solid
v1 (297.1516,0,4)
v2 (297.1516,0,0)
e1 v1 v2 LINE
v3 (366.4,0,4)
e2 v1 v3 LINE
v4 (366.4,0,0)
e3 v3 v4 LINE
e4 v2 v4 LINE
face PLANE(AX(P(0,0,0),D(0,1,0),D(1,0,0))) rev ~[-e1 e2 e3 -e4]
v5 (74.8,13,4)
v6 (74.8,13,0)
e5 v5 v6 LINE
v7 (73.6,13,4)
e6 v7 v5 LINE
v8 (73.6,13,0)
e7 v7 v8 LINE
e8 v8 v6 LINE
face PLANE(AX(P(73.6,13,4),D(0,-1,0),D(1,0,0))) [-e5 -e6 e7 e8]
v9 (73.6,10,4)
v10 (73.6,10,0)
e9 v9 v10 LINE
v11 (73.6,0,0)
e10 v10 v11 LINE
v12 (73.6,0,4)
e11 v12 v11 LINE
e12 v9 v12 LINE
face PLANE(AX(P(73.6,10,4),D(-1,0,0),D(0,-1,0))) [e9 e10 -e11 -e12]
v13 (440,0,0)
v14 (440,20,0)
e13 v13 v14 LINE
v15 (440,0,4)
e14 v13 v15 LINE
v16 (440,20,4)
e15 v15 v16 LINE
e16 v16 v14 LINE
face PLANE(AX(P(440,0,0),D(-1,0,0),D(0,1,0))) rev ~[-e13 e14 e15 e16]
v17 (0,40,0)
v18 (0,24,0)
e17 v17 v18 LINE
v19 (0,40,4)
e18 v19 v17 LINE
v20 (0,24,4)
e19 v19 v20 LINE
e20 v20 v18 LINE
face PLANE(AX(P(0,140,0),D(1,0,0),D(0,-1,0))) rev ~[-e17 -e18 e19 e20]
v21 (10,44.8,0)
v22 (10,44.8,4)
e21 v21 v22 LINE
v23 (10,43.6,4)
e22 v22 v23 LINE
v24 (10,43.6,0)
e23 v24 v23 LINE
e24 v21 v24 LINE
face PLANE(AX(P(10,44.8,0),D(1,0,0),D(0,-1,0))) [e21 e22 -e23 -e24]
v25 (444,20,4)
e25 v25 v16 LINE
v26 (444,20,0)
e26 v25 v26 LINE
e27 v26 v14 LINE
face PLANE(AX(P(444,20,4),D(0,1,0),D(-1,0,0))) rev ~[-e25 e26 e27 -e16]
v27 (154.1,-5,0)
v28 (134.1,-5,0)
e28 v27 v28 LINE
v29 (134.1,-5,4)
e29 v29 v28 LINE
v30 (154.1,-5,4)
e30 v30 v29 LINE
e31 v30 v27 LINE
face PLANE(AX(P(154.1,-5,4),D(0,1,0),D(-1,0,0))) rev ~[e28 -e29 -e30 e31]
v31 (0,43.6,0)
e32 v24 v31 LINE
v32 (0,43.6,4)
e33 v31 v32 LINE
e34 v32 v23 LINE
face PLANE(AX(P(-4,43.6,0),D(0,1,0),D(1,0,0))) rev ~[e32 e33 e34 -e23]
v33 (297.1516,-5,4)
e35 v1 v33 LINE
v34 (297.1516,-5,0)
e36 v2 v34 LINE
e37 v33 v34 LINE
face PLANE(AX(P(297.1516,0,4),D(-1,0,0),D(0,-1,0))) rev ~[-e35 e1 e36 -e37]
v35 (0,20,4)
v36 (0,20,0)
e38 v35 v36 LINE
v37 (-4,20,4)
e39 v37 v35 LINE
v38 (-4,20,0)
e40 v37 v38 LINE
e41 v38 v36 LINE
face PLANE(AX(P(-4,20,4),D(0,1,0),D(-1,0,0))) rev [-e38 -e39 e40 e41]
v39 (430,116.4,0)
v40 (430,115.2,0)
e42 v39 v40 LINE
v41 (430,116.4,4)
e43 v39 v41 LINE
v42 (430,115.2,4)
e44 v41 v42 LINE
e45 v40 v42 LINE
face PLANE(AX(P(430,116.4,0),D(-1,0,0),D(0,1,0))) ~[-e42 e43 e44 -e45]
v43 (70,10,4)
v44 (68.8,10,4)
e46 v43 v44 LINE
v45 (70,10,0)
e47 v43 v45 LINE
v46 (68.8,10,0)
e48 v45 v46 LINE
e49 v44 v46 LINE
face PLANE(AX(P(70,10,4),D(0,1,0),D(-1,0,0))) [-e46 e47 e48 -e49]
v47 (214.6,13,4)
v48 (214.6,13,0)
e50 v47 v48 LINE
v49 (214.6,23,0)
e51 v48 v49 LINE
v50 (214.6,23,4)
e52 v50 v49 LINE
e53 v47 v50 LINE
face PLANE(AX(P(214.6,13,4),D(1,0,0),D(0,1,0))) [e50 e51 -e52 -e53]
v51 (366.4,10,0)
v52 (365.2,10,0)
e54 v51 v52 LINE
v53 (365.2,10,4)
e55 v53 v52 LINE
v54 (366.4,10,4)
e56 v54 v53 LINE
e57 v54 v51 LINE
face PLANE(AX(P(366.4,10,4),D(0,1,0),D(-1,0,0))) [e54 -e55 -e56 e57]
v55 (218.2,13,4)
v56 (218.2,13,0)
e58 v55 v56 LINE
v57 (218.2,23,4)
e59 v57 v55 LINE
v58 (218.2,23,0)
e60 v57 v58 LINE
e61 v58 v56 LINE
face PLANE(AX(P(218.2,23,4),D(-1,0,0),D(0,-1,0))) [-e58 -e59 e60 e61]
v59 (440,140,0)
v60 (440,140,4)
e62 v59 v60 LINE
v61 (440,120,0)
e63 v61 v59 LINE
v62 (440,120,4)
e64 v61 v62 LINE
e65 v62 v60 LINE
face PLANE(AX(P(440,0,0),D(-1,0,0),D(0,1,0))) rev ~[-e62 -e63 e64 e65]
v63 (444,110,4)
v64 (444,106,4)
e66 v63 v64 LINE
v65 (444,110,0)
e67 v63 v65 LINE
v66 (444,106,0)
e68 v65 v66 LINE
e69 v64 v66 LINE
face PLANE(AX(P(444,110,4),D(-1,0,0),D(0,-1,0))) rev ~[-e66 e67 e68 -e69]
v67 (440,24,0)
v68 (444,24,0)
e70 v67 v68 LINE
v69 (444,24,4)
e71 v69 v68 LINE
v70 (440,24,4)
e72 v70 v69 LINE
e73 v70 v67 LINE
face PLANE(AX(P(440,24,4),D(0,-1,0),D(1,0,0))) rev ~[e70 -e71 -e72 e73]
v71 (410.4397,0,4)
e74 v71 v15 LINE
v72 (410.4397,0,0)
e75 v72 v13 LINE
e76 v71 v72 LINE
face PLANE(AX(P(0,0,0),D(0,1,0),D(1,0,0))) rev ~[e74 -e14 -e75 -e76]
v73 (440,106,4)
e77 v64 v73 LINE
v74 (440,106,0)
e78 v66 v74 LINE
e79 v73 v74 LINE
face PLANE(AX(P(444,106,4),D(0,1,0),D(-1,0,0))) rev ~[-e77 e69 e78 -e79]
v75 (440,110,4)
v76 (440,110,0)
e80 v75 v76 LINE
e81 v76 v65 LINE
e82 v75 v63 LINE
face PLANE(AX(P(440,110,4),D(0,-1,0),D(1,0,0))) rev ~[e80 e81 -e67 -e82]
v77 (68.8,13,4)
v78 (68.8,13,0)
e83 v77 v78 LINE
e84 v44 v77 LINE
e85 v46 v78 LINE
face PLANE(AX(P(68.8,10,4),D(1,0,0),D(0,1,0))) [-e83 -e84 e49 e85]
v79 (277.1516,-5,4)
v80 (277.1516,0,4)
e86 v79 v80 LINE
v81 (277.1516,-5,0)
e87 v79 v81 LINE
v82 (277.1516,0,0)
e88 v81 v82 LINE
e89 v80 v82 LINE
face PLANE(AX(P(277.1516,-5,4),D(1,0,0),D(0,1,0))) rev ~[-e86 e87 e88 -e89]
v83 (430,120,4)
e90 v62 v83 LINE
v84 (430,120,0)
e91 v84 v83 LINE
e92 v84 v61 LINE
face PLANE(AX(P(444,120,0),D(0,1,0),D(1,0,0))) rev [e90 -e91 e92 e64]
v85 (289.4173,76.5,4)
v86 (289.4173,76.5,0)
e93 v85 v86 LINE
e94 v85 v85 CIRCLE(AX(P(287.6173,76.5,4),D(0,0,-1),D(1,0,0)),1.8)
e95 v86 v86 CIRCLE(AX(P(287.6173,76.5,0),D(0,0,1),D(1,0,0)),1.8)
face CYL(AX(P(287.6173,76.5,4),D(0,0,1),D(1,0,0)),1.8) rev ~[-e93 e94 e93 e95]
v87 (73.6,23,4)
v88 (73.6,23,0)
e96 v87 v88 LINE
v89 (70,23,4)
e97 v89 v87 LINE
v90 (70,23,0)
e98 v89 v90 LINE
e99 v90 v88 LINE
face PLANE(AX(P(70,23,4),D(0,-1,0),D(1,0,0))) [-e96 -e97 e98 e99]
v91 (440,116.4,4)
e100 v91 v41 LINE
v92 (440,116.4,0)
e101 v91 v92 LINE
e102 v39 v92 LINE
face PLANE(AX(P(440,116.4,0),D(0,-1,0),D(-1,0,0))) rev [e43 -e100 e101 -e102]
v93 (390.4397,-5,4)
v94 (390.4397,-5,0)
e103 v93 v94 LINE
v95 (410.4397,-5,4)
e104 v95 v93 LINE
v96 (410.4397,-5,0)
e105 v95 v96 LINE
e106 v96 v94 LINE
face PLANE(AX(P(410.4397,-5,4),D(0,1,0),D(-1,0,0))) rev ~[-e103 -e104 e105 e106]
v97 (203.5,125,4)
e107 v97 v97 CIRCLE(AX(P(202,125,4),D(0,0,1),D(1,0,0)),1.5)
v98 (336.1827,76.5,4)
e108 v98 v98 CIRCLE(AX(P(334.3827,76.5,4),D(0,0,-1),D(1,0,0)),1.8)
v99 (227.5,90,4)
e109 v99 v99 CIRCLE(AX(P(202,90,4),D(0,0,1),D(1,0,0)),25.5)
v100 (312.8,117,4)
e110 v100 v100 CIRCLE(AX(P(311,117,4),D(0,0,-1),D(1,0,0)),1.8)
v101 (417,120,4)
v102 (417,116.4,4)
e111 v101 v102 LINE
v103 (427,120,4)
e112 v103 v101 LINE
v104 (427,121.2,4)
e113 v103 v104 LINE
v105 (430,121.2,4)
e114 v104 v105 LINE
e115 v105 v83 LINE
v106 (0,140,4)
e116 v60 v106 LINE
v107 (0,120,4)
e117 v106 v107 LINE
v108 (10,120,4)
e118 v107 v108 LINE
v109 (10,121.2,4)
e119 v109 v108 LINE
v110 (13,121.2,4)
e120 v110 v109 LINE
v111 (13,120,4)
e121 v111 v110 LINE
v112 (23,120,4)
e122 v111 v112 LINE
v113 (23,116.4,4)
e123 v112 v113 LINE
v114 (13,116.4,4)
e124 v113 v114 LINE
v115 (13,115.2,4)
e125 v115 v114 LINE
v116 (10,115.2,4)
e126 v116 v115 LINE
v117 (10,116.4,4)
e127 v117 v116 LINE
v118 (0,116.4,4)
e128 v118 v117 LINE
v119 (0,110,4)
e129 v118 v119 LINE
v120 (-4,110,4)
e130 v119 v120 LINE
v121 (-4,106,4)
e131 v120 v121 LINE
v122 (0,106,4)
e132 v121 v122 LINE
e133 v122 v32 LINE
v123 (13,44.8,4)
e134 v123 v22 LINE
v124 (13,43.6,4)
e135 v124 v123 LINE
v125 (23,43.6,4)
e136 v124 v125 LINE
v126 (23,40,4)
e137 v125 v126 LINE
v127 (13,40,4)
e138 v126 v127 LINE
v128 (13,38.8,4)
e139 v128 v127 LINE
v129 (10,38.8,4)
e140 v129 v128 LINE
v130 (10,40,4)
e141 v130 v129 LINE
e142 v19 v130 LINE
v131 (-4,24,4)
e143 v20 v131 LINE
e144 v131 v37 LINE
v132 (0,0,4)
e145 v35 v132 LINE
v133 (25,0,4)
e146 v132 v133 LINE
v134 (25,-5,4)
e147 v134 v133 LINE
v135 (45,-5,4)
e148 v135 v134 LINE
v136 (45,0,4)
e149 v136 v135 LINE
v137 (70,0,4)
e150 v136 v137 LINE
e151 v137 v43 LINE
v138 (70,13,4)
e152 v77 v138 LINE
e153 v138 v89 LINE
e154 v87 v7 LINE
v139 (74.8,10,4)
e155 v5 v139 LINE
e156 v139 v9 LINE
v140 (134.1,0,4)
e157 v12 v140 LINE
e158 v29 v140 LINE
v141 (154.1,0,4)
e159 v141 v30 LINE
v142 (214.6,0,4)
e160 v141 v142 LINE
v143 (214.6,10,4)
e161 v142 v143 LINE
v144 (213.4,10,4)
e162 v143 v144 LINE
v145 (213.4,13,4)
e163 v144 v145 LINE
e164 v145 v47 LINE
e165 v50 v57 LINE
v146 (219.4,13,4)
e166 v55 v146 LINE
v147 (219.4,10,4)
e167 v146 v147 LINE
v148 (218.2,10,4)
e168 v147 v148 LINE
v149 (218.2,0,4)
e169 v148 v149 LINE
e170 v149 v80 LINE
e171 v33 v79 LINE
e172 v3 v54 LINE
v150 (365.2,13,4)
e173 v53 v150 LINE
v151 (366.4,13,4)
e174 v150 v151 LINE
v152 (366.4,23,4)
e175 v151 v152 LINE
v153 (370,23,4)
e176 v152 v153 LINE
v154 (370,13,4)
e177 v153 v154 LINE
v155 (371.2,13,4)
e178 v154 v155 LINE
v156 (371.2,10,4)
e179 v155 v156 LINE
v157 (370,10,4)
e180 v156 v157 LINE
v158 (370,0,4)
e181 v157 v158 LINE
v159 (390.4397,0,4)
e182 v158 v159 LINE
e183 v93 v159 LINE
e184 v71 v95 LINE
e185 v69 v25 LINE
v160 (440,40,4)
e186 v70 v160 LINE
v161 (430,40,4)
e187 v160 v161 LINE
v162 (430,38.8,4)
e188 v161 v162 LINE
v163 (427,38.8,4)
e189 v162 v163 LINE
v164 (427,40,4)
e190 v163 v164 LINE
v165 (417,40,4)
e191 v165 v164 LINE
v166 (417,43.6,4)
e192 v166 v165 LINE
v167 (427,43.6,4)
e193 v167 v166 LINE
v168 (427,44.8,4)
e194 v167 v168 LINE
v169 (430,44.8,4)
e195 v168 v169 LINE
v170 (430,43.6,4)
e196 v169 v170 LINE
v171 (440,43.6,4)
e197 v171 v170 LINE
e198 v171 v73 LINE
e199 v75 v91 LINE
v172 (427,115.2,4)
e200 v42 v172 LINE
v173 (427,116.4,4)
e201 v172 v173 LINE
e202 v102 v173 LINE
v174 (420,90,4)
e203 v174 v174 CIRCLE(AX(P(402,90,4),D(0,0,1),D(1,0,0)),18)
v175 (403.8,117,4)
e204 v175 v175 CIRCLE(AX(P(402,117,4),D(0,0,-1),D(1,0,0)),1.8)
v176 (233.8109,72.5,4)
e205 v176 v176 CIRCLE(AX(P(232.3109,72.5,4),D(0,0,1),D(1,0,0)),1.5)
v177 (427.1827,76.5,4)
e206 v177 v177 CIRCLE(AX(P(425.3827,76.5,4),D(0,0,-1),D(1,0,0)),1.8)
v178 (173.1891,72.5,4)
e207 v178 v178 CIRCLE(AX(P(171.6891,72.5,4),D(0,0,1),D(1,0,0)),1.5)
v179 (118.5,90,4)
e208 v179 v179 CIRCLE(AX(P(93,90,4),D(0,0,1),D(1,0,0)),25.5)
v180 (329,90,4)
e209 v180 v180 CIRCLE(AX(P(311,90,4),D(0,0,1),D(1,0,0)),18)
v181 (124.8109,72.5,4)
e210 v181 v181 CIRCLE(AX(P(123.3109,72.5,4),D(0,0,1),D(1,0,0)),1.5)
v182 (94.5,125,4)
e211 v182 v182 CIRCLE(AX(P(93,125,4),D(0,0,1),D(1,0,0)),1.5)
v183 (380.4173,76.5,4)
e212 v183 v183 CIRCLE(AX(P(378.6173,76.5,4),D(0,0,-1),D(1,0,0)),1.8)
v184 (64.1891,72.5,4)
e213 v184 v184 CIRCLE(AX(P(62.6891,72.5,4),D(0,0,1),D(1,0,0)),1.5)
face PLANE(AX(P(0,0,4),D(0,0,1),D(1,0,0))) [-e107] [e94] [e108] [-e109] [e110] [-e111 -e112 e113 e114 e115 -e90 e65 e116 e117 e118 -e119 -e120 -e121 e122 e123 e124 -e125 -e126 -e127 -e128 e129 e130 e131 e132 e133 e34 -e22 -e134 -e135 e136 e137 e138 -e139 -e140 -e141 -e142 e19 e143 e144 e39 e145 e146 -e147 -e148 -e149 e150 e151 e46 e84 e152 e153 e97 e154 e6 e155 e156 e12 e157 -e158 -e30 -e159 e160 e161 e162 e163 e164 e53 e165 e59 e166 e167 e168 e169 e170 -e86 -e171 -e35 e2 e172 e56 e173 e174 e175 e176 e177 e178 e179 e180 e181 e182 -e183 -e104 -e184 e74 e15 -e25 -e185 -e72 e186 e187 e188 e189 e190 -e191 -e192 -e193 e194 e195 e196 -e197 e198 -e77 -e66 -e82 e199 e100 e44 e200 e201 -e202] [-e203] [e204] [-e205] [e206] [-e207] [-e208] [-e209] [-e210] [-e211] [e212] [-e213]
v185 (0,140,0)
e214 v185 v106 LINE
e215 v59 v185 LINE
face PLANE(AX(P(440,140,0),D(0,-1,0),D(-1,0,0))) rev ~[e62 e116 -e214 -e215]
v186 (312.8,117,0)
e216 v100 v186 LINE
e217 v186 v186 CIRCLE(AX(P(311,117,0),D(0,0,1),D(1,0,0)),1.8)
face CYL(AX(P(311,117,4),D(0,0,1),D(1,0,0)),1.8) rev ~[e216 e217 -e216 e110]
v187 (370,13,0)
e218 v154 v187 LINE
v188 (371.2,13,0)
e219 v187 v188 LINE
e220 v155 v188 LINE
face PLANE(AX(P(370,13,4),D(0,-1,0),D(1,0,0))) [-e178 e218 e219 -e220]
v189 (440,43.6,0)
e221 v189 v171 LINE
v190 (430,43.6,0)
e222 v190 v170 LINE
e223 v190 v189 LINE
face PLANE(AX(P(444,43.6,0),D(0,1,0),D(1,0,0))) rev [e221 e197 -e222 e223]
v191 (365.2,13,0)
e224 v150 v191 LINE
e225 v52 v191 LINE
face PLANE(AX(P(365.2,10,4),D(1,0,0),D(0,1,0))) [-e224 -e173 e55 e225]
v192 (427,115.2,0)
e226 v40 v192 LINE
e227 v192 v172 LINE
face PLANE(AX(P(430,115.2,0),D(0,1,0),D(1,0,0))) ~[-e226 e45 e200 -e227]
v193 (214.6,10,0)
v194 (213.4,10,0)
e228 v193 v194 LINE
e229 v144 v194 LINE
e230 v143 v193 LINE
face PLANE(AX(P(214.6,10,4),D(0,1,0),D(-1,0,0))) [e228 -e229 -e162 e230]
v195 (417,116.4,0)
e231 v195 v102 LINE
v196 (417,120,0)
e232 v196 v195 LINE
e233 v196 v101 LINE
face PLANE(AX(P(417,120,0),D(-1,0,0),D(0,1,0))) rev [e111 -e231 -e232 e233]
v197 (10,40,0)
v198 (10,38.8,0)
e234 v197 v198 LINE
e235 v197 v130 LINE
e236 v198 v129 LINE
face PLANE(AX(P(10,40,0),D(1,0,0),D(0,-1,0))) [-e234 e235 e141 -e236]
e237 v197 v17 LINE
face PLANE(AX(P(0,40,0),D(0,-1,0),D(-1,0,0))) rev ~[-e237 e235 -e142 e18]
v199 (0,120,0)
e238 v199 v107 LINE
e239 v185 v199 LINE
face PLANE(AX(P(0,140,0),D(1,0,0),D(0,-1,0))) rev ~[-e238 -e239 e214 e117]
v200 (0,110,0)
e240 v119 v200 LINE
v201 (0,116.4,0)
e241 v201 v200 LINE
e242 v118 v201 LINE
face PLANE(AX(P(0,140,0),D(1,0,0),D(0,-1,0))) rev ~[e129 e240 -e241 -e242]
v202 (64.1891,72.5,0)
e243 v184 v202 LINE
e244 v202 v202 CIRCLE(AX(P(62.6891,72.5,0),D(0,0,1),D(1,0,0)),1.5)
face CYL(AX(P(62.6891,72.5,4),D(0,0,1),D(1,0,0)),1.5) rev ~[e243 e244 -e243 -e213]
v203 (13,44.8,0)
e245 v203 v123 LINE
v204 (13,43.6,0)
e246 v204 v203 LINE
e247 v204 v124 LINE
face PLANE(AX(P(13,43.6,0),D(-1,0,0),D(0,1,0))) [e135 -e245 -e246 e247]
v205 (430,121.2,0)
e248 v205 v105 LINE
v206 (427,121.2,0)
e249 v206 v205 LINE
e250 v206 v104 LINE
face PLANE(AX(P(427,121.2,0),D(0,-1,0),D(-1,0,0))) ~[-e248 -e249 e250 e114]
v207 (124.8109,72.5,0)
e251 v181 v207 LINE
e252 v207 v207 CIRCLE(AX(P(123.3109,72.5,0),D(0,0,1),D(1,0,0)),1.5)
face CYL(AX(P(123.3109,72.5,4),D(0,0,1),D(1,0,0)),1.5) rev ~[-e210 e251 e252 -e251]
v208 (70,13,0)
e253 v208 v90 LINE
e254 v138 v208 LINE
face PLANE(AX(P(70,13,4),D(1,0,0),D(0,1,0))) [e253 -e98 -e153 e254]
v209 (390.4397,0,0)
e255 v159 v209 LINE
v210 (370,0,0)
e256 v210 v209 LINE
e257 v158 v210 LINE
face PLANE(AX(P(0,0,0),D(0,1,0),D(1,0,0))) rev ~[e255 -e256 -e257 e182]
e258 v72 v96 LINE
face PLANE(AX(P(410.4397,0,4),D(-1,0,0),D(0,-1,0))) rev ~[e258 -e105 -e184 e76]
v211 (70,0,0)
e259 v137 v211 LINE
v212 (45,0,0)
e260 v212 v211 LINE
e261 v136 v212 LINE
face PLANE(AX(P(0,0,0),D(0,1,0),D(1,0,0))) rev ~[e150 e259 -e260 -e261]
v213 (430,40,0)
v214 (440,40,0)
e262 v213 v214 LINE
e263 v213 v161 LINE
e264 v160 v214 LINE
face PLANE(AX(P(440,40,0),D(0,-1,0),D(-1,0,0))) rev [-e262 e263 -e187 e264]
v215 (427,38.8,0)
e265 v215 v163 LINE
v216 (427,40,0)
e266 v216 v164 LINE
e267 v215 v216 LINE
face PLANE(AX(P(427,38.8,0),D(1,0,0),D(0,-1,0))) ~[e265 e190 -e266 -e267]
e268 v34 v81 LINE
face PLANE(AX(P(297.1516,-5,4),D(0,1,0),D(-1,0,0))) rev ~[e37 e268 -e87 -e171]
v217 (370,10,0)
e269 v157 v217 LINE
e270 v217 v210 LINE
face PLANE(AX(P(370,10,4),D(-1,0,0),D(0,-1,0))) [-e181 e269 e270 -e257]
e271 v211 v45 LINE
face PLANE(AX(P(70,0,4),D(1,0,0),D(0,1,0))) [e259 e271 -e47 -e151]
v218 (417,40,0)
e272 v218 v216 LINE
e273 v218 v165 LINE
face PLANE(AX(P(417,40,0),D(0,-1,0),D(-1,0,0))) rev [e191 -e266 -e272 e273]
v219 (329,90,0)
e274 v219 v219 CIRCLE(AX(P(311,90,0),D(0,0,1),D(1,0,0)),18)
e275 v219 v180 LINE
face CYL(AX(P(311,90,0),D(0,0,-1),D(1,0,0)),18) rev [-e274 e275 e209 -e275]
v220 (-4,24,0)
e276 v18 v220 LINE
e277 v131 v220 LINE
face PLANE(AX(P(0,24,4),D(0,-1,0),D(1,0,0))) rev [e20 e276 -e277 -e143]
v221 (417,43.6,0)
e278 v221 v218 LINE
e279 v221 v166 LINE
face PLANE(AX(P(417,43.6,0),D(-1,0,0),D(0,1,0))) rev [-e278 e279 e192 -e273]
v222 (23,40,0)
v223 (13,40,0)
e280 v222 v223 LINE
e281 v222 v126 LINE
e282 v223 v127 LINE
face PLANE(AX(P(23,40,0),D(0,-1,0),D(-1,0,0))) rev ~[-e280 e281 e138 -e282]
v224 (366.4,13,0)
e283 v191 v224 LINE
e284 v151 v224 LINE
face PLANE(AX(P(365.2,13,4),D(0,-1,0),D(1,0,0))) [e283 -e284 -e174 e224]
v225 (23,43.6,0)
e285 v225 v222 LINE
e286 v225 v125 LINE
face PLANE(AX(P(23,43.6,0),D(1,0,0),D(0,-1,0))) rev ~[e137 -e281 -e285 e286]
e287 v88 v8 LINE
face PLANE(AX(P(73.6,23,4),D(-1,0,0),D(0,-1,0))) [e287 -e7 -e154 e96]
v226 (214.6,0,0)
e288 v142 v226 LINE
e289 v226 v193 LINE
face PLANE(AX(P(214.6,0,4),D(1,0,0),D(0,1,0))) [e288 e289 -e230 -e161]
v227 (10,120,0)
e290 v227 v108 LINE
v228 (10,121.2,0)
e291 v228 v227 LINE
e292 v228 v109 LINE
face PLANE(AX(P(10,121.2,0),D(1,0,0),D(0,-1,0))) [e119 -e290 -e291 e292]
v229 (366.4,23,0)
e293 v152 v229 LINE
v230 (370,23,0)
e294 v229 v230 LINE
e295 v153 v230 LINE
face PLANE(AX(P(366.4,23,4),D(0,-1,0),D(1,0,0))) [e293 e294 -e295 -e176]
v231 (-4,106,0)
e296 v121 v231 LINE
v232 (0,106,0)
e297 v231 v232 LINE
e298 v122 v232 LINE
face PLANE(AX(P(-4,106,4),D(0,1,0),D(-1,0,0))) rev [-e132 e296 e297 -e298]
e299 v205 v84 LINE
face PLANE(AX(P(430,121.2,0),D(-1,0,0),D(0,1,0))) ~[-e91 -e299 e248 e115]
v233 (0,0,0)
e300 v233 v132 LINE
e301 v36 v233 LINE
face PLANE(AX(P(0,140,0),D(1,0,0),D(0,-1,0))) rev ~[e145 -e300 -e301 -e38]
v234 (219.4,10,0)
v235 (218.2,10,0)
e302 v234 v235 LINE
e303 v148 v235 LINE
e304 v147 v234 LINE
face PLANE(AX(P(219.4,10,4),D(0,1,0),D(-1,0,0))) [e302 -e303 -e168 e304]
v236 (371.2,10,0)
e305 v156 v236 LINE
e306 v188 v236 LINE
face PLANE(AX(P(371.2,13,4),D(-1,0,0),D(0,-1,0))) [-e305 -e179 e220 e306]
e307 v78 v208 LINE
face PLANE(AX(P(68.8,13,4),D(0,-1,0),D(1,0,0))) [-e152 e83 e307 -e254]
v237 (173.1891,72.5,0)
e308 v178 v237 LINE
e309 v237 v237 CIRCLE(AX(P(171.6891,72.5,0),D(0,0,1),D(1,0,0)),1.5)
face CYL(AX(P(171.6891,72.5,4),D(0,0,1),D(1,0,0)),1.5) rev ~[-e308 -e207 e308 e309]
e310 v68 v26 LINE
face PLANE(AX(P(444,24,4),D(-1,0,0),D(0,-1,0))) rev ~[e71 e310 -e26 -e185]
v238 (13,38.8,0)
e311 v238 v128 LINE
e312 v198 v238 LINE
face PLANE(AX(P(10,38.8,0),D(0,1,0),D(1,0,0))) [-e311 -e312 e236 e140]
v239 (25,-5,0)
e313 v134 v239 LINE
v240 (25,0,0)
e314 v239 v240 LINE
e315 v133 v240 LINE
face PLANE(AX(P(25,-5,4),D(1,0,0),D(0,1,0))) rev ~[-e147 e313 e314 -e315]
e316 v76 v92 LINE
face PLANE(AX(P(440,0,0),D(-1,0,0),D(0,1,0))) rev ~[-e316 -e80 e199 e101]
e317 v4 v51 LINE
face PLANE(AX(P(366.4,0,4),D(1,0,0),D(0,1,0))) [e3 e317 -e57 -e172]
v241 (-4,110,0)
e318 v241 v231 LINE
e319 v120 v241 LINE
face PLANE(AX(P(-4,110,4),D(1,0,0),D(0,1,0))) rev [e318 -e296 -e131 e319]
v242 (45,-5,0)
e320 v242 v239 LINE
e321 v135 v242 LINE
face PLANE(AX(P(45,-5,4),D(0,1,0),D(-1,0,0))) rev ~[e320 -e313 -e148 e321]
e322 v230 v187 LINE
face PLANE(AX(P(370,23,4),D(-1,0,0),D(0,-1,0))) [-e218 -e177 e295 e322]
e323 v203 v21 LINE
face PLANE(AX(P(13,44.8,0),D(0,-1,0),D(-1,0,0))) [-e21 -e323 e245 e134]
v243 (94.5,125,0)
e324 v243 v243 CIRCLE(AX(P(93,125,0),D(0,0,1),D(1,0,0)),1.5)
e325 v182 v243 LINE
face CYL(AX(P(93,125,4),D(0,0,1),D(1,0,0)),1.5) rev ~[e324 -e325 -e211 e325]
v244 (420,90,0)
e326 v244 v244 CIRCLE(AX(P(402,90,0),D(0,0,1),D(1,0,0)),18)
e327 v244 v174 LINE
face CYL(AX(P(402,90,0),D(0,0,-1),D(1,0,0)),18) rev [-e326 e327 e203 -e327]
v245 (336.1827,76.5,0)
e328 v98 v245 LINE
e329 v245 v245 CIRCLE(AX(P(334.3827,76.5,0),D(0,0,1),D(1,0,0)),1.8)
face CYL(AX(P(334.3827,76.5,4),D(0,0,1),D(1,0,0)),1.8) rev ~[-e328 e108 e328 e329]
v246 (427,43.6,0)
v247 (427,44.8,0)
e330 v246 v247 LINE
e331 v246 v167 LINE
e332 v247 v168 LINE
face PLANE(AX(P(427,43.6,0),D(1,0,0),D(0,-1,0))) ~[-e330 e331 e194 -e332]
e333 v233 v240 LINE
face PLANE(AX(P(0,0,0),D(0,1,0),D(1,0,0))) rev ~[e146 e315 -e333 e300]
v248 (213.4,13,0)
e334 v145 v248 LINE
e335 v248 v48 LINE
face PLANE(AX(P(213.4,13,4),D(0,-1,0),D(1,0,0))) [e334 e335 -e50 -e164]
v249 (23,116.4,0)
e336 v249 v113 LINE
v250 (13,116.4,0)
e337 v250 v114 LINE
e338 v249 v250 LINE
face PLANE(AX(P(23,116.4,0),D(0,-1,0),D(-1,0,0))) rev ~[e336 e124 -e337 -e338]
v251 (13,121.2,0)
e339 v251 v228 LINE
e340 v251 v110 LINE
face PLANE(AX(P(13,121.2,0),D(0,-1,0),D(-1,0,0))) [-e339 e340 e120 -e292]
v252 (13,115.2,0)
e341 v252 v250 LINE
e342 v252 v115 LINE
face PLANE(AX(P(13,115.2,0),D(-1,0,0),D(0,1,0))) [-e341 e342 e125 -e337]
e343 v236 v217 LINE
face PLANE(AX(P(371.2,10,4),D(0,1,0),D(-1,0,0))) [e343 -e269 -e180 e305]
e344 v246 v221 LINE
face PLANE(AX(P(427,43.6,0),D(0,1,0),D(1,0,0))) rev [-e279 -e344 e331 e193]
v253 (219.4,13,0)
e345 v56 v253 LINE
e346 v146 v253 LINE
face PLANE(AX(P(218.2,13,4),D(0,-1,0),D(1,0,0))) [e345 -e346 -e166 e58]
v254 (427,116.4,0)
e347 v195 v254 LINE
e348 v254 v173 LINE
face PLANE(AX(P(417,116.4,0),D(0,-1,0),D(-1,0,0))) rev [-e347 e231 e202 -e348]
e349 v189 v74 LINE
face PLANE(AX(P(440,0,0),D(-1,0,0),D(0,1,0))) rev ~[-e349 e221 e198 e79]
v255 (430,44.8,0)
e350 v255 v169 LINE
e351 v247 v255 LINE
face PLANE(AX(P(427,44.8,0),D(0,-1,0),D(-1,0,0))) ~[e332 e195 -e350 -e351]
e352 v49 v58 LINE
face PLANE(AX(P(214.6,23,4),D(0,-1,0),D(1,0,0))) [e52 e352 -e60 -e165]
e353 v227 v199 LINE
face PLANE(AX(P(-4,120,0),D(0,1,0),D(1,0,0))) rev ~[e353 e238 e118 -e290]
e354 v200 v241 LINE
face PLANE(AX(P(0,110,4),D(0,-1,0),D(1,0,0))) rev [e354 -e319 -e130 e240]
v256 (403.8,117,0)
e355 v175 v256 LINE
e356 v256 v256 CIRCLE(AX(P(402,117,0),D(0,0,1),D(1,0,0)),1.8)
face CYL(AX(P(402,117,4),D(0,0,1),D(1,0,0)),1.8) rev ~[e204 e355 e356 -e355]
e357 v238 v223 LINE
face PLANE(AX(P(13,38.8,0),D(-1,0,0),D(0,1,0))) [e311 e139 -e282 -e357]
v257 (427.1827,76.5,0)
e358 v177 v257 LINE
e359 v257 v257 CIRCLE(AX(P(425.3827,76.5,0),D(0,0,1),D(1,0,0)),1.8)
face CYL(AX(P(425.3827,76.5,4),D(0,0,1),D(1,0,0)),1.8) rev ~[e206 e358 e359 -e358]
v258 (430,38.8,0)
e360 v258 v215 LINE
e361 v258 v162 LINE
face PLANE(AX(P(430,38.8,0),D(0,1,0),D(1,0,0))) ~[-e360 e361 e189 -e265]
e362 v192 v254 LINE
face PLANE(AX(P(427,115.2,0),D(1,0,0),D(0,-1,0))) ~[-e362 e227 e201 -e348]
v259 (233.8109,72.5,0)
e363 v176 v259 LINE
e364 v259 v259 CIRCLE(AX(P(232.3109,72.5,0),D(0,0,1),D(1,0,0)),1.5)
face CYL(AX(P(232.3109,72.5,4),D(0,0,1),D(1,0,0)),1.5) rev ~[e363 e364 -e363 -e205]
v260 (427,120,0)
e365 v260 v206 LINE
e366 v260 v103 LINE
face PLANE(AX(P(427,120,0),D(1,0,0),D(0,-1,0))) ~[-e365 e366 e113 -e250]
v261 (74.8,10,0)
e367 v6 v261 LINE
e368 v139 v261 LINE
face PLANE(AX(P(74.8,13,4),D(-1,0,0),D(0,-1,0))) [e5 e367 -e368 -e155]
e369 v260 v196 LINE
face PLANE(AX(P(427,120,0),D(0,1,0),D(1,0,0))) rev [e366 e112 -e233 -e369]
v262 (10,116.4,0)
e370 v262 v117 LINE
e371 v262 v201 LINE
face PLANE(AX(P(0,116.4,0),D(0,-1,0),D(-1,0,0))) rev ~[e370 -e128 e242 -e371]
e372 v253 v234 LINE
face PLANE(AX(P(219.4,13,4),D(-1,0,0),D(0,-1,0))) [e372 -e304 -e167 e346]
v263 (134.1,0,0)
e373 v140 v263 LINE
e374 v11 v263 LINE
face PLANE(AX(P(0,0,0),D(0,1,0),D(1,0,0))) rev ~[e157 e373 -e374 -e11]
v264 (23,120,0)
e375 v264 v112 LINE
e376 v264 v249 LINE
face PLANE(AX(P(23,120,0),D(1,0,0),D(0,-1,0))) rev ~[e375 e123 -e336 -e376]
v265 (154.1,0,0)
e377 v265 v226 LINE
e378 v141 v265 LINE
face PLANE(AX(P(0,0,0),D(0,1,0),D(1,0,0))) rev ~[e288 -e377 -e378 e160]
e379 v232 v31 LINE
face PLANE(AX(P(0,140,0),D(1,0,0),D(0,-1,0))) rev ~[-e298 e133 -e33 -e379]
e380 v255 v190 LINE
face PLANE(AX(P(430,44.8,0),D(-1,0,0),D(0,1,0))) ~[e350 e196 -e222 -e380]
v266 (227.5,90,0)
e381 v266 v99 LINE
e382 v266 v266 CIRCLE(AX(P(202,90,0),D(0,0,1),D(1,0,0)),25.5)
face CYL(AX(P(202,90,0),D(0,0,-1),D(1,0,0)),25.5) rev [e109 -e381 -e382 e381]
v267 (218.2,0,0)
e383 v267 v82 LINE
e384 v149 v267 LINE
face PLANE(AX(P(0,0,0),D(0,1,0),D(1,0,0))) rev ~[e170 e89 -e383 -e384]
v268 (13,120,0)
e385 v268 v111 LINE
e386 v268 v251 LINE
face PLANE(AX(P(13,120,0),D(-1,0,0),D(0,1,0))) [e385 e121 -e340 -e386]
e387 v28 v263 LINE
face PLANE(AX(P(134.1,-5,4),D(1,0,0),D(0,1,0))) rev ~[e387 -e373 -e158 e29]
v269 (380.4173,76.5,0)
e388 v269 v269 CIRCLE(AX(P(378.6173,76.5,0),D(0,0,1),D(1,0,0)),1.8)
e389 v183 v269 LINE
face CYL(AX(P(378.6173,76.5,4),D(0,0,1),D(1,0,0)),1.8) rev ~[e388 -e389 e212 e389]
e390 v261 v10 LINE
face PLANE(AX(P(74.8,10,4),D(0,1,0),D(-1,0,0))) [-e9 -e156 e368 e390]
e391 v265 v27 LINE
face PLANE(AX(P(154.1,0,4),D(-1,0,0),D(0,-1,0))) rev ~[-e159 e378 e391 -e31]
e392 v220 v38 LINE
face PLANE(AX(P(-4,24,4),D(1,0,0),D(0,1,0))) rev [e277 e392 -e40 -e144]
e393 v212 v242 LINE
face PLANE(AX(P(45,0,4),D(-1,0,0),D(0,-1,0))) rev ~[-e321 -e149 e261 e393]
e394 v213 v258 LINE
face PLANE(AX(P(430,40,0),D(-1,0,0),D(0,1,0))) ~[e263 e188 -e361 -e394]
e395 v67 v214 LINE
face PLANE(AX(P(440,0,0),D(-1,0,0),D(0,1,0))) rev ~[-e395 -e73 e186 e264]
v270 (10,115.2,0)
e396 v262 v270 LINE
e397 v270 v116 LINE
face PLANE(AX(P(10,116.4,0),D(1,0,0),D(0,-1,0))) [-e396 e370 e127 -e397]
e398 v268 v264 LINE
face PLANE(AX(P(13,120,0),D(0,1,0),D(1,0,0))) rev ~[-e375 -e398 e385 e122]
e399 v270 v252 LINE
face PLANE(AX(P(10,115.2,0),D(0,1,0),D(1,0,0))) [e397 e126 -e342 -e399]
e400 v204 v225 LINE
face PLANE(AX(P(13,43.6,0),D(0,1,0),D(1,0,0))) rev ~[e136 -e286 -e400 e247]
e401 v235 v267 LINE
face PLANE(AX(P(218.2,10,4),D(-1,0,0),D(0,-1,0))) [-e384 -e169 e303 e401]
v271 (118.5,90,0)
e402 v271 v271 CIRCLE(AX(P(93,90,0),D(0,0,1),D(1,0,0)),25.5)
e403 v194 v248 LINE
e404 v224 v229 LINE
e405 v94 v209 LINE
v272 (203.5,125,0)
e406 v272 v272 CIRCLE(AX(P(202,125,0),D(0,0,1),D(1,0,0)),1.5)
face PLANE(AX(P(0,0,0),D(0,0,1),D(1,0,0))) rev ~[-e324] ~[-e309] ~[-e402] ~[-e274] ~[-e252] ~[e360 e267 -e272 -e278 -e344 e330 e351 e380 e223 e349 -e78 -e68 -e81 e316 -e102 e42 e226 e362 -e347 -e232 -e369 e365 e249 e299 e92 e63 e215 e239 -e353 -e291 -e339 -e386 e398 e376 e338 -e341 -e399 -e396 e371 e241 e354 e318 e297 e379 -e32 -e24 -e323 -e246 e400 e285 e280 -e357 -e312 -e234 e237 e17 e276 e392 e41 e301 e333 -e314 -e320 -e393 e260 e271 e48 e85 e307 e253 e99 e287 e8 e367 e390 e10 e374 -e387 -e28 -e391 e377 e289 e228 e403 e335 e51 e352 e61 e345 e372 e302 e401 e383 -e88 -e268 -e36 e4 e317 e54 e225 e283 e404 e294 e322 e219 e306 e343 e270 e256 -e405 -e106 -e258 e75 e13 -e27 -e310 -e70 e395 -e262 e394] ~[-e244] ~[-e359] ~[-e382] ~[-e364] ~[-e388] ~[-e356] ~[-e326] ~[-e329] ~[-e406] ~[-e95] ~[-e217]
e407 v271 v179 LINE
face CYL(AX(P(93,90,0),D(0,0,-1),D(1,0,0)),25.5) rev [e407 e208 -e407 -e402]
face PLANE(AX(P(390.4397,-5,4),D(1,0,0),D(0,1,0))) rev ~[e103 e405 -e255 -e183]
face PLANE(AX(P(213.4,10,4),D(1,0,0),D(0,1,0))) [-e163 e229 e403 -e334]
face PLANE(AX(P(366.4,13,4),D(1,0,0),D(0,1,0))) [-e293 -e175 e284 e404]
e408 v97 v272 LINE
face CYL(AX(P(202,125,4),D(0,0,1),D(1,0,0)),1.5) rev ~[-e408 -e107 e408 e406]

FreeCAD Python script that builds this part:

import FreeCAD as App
import Part
import Sketcher
from FreeCAD import Vector
Q = App.Units.Quantity


def add_polygon(sketch, points):
    """Adds a closed chain of lines whose ends are joined by coincident constraints."""
    first, n = sketch.GeometryCount, len(points)
    for a, b in zip(points, points[1:] + points[:1]):
        sketch.addGeometry(Part.LineSegment(App.Vector(*a, 0), App.Vector(*b, 0)), False)
    for i in range(n):
        sketch.addConstraint(Sketcher.Constraint("Coincident", first + i, 2, first + (i + 1) % n, 1))

doc = App.newDocument("Part")
body = doc.addObject("PartDesign::Body", "Body")

sketch1 = body.newObject("Sketcher::SketchObject", "Sketch")
sketch1.AttachmentSupport = (doc.getObject("XY_Plane"), [""])
sketch1.MapMode = "FlatFace"
add_polygon(sketch1, [(440, 0), (440, 140), (0, 140), (0, 0)])
sketch1.addGeometry(Part.Circle(Vector(93, 90, 0), Vector(0, 0, 1), 26), False)
sketch1.addGeometry(Part.Circle(Vector(202, 90, 0), Vector(0, 0, 1), 26), False)
sketch1.addGeometry(Part.Circle(Vector(311, 90, 0), Vector(0, 0, 1), 18), False)
sketch1.addGeometry(Part.Circle(Vector(402, 90, 0), Vector(0, 0, 1), 18), False)
sketch1.addConstraint(Sketcher.Constraint("Vertical", 0))
sketch1.addConstraint(Sketcher.Constraint("Horizontal", 1))
sketch1.addConstraint(Sketcher.Constraint("Vertical", 2))
sketch1.addConstraint(Sketcher.Constraint("Horizontal", 3))
sketch1.addConstraint(Sketcher.Constraint("Coincident", 2, 2, -1, 1))
sketch1.addConstraint(Sketcher.Constraint("Equal", 4, 5))
sketch1.addConstraint(Sketcher.Constraint("Equal", 6, 7))
sketch1.addConstraint(Sketcher.Constraint("Horizontal", 4, 3, 5, 3))
sketch1.addConstraint(Sketcher.Constraint("Horizontal", 5, 3, 6, 3))
sketch1.addConstraint(Sketcher.Constraint("Horizontal", 6, 3, 7, 3))
sketch1.addConstraint(Sketcher.Constraint("Diameter", 4, Q("51 mm")))
sketch1.addConstraint(Sketcher.Constraint("Diameter", 6, Q("36 mm")))
sketch1.addConstraint(Sketcher.Constraint("DistanceX", 1, 2, 1, 1, Q("440 mm")))
sketch1.addConstraint(Sketcher.Constraint("DistanceY", 0, 1, 0, 2, Q("140 mm")))
sketch1.addConstraint(Sketcher.Constraint("DistanceX", -1, 1, 4, 3, Q("93 mm")))
sketch1.addConstraint(Sketcher.Constraint("DistanceY", -1, 1, 4, 3, Q("90 mm")))
sketch1.addConstraint(Sketcher.Constraint("DistanceX", -1, 1, 5, 3, Q("202 mm")))
sketch1.addConstraint(Sketcher.Constraint("DistanceX", -1, 1, 6, 3, Q("311 mm")))
sketch1.addConstraint(Sketcher.Constraint("DistanceX", -1, 1, 7, 3, Q("402 mm")))
pad1 = body.newObject("PartDesign::Pad", "Pad")
pad1.Profile = sketch1
pad1.Length = 4

sketch2 = body.newObject("Sketcher::SketchObject", "Sketch001")
sketch2.AttachmentSupport = (doc.getObject("XY_Plane"), [""])
sketch2.MapMode = "FlatFace"
add_polygon(sketch2, [(-4, 120), (10, 120), (10, 121.2), (13, 121.2), (13, 120), (23, 120), (23, 116.4), (13, 116.4), (13, 115.2), (10, 115.2), (10, 116.4), (-4, 116.4)])
add_polygon(sketch2, [(-4, 43.6), (10, 43.6), (10, 44.8), (13, 44.8), (13, 43.6), (23, 43.6), (23, 40), (13, 40), (13, 38.8), (10, 38.8), (10, 40), (-4, 40)])
sketch2.addConstraint(Sketcher.Constraint("Horizontal", 0))
sketch2.addConstraint(Sketcher.Constraint("Vertical", 1))
sketch2.addConstraint(Sketcher.Constraint("Horizontal", 2))
sketch2.addConstraint(Sketcher.Constraint("Vertical", 3))
sketch2.addConstraint(Sketcher.Constraint("Horizontal", 4))
sketch2.addConstraint(Sketcher.Constraint("Vertical", 5))
sketch2.addConstraint(Sketcher.Constraint("Horizontal", 6))
sketch2.addConstraint(Sketcher.Constraint("Vertical", 7))
sketch2.addConstraint(Sketcher.Constraint("Horizontal", 8))
sketch2.addConstraint(Sketcher.Constraint("Vertical", 9))
sketch2.addConstraint(Sketcher.Constraint("Horizontal", 10))
sketch2.addConstraint(Sketcher.Constraint("Vertical", 11))
sketch2.addConstraint(Sketcher.Constraint("Horizontal", 12))
sketch2.addConstraint(Sketcher.Constraint("Vertical", 13))
sketch2.addConstraint(Sketcher.Constraint("Horizontal", 14))
sketch2.addConstraint(Sketcher.Constraint("Vertical", 15))
sketch2.addConstraint(Sketcher.Constraint("Horizontal", 16))
sketch2.addConstraint(Sketcher.Constraint("Vertical", 17))
sketch2.addConstraint(Sketcher.Constraint("Horizontal", 18))
sketch2.addConstraint(Sketcher.Constraint("Vertical", 19))
sketch2.addConstraint(Sketcher.Constraint("Horizontal", 20))
sketch2.addConstraint(Sketcher.Constraint("Vertical", 21))
sketch2.addConstraint(Sketcher.Constraint("Horizontal", 22))
sketch2.addConstraint(Sketcher.Constraint("Vertical", 23))
sketch2.addConstraint(Sketcher.Constraint("Horizontal", 0, 2, 3, 2))
sketch2.addConstraint(Sketcher.Constraint("Horizontal", 6, 2, 9, 2))
sketch2.addConstraint(Sketcher.Constraint("Horizontal", 12, 2, 15, 2))
sketch2.addConstraint(Sketcher.Constraint("Horizontal", 18, 2, 21, 2))
sketch2.addConstraint(Sketcher.Constraint("Vertical", 3, 2, 6, 2))
sketch2.addConstraint(Sketcher.Constraint("Vertical", 1, 2, 8, 2))
sketch2.addConstraint(Sketcher.Constraint("Vertical", 9, 2, 12, 2))
sketch2.addConstraint(Sketcher.Constraint("Vertical", 7, 2, 14, 2))
sketch2.addConstraint(Sketcher.Constraint("Vertical", 5, 2, 16, 2))
sketch2.addConstraint(Sketcher.Constraint("Vertical", 15, 2, 18, 2))
sketch2.addConstraint(Sketcher.Constraint("Vertical", 13, 2, 20, 2))
sketch2.addConstraint(Sketcher.Constraint("Vertical", 11, 2, 22, 2))
sketch2.addConstraint(Sketcher.Constraint("Equal", 3, 7))
sketch2.addConstraint(Sketcher.Constraint("Equal", 9, 13))
sketch2.addConstraint(Sketcher.Constraint("Equal", 11, 17))
sketch2.addConstraint(Sketcher.Constraint("Equal", 15, 19))
sketch2.addConstraint(Sketcher.Constraint("DistanceX", 2, 1, 2, 2, Q("3 mm")))
sketch2.addConstraint(Sketcher.Constraint("DistanceX", 4, 1, 4, 2, Q("10 mm")))
sketch2.addConstraint(Sketcher.Constraint("DistanceY", 5, 2, 5, 1, Q("3.6 mm")))
sketch2.addConstraint(Sketcher.Constraint("DistanceX", -1, 1, 0, 2, Q("10 mm")))
sketch2.addConstraint(Sketcher.Constraint("DistanceX", 10, 2, -1, 1, Q("4 mm")))
sketch2.addConstraint(Sketcher.Constraint("DistanceY", -1, 1, 17, 2, Q("40 mm")))
sketch2.addConstraint(Sketcher.Constraint("DistanceY", 7, 2, 2, 2, Q("6 mm")))
sketch2.addConstraint(Sketcher.Constraint("DistanceY", -1, 1, 0, 2, Q("120 mm")))
pocket1 = body.newObject("PartDesign::Pocket", "Pocket")
pocket1.Profile = sketch2
pocket1.Length = 4
pocket1.Reversed = True
doc.recompute()

datumplane = body.newObject("PartDesign::Plane", "DatumPlane")
datumplane.AttachmentSupport = (doc.getObject("YZ_Plane"), [""])
datumplane.MapMode = "FlatFace"
datumplane.AttachmentOffset = App.Placement(Vector(0, 0, 220), App.Rotation())
mirrored = body.newObject("PartDesign::Mirrored", "Mirrored")
mirrored.Originals = [pocket1]
mirrored.MirrorPlane = (datumplane, [""])
body.Tip = mirrored

sketch3 = body.newObject("Sketcher::SketchObject", "Sketch002")
sketch3.AttachmentSupport = (doc.getObject("XY_Plane"), [""])
sketch3.MapMode = "FlatFace"
sketch3.AttachmentOffset = App.Placement(Vector(0, 0, 4), App.Rotation())
add_polygon(sketch3, [(444, 110), (440, 110), (440, 106), (444, 106)])
add_polygon(sketch3, [(444, 24), (440, 24), (440, 20), (444, 20)])
sketch3.addConstraint(Sketcher.Constraint("Horizontal", 0))
sketch3.addConstraint(Sketcher.Constraint("Vertical", 1))
sketch3.addConstraint(Sketcher.Constraint("Horizontal", 2))
sketch3.addConstraint(Sketcher.Constraint("Vertical", 3))
sketch3.addConstraint(Sketcher.Constraint("Horizontal", 4))
sketch3.addConstraint(Sketcher.Constraint("Vertical", 5))
sketch3.addConstraint(Sketcher.Constraint("Horizontal", 6))
sketch3.addConstraint(Sketcher.Constraint("Vertical", 7))
sketch3.addConstraint(Sketcher.Constraint("Vertical", 1, 2, 4, 2))
sketch3.addConstraint(Sketcher.Constraint("Vertical", 3, 2, 6, 2))
sketch3.addConstraint(Sketcher.Constraint("Equal", 6, 1))
sketch3.addConstraint(Sketcher.Constraint("Equal", 3, 5))
sketch3.addConstraint(Sketcher.Constraint("DistanceX", 0, 2, 0, 1, Q("4 mm")))
sketch3.addConstraint(Sketcher.Constraint("DistanceY", -1, 1, 5, 2, Q("20 mm")))
sketch3.addConstraint(Sketcher.Constraint("DistanceX", -1, 1, 0, 2, Q("440 mm")))
sketch3.addConstraint(Sketcher.Constraint("DistanceY", -1, 1, 0, 2, Q("110 mm")))
pad2 = body.newObject("PartDesign::Pad", "Pad001")
pad2.Profile = sketch3
pad2.Length = 4
pad2.Reversed = True
doc.recompute()

datumplane2 = body.newObject("PartDesign::Plane", "DatumPlane001")
datumplane2.AttachmentSupport = (doc.getObject("YZ_Plane"), [""])
datumplane2.MapMode = "FlatFace"
datumplane2.AttachmentOffset = App.Placement(Vector(0, 0, 220), App.Rotation())
mirrored2 = body.newObject("PartDesign::Mirrored", "Mirrored001")
mirrored2.Originals = [pad2]
mirrored2.MirrorPlane = (datumplane2, [""])
body.Tip = mirrored2

sketch4 = body.newObject("Sketcher::SketchObject", "Sketch003")
sketch4.AttachmentSupport = (doc.getObject("XY_Plane"), [""])
sketch4.MapMode = "FlatFace"
sketch4.AttachmentOffset = App.Placement(Vector(0, 0, 4), App.Rotation())
add_polygon(sketch4, [(366.4, 0), (370, 0), (370, 10), (371.2, 10), (371.2, 13), (370, 13), (370, 23), (366.4, 23), (366.4, 13), (365.2, 13), (365.2, 10), (366.4, 10)])
add_polygon(sketch4, [(214.6, 0), (218.2, 0), (218.2, 10), (219.4, 10), (219.4, 13), (218.2, 13), (218.2, 23), (214.6, 23), (214.6, 13), (213.4, 13), (213.4, 10), (214.6, 10)])
add_polygon(sketch4, [(70, 0), (73.6, 0), (73.6, 10), (74.8, 10), (74.8, 13), (73.6, 13), (73.6, 23), (70, 23), (70, 13), (68.8, 13), (68.8, 10), (70, 10)])
sketch4.addConstraint(Sketcher.Constraint("Horizontal", 0))
sketch4.addConstraint(Sketcher.Constraint("Vertical", 1))
sketch4.addConstraint(Sketcher.Constraint("Horizontal", 2))
sketch4.addConstraint(Sketcher.Constraint("Vertical", 3))
sketch4.addConstraint(Sketcher.Constraint("Horizontal", 4))
sketch4.addConstraint(Sketcher.Constraint("Vertical", 5))
sketch4.addConstraint(Sketcher.Constraint("Horizontal", 6))
sketch4.addConstraint(Sketcher.Constraint("Vertical", 7))
sketch4.addConstraint(Sketcher.Constraint("Horizontal", 8))
sketch4.addConstraint(Sketcher.Constraint("Vertical", 9))
sketch4.addConstraint(Sketcher.Constraint("Horizontal", 10))
sketch4.addConstraint(Sketcher.Constraint("Vertical", 11))
sketch4.addConstraint(Sketcher.Constraint("Horizontal", 12))
sketch4.addConstraint(Sketcher.Constraint("Vertical", 13))
sketch4.addConstraint(Sketcher.Constraint("Horizontal", 14))
sketch4.addConstraint(Sketcher.Constraint("Vertical", 15))
sketch4.addConstraint(Sketcher.Constraint("Horizontal", 16))
sketch4.addConstraint(Sketcher.Constraint("Vertical", 17))
sketch4.addConstraint(Sketcher.Constraint("Horizontal", 18))
sketch4.addConstraint(Sketcher.Constraint("Vertical", 19))
sketch4.addConstraint(Sketcher.Constraint("Horizontal", 20))
sketch4.addConstraint(Sketcher.Constraint("Vertical", 21))
sketch4.addConstraint(Sketcher.Constraint("Horizontal", 22))
sketch4.addConstraint(Sketcher.Constraint("Vertical", 23))
sketch4.addConstraint(Sketcher.Constraint("Horizontal", 24))
sketch4.addConstraint(Sketcher.Constraint("Vertical", 25))
sketch4.addConstraint(Sketcher.Constraint("Horizontal", 26))
sketch4.addConstraint(Sketcher.Constraint("Vertical", 27))
sketch4.addConstraint(Sketcher.Constraint("Horizontal", 28))
sketch4.addConstraint(Sketcher.Constraint("Vertical", 29))
sketch4.addConstraint(Sketcher.Constraint("Horizontal", 30))
sketch4.addConstraint(Sketcher.Constraint("Vertical", 31))
sketch4.addConstraint(Sketcher.Constraint("Horizontal", 32))
sketch4.addConstraint(Sketcher.Constraint("Vertical", 33))
sketch4.addConstraint(Sketcher.Constraint("Horizontal", 34))
sketch4.addConstraint(Sketcher.Constraint("Vertical", 35))
sketch4.addConstraint(Sketcher.Constraint("PointOnObject", 0, 2, -1))
sketch4.addConstraint(Sketcher.Constraint("PointOnObject", 12, 2, -1))
sketch4.addConstraint(Sketcher.Constraint("PointOnObject", 24, 2, -1))
sketch4.addConstraint(Sketcher.Constraint("Horizontal", 4, 2, 7, 2))
sketch4.addConstraint(Sketcher.Constraint("Horizontal", 2, 2, 9, 2))
sketch4.addConstraint(Sketcher.Constraint("Horizontal", 10, 2, 13, 2))
sketch4.addConstraint(Sketcher.Constraint("Horizontal", 8, 2, 15, 2))
sketch4.addConstraint(Sketcher.Constraint("Horizontal", 6, 2, 17, 2))
sketch4.addConstraint(Sketcher.Constraint("Horizontal", 16, 2, 19, 2))
sketch4.addConstraint(Sketcher.Constraint("Horizontal", 14, 2, 21, 2))
sketch4.addConstraint(Sketcher.Constraint("Horizontal", 22, 2, 25, 2))
sketch4.addConstraint(Sketcher.Constraint("Horizontal", 20, 2, 27, 2))
sketch4.addConstraint(Sketcher.Constraint("Horizontal", 18, 2, 29, 2))
sketch4.addConstraint(Sketcher.Constraint("Horizontal", 28, 2, 31, 2))
sketch4.addConstraint(Sketcher.Constraint("Horizontal", 26, 2, 33, 2))
sketch4.addConstraint(Sketcher.Constraint("Vertical", 1, 2, 4, 2))
sketch4.addConstraint(Sketcher.Constraint("Vertical", 7, 2, 10, 2))
sketch4.addConstraint(Sketcher.Constraint("Vertical", 13, 2, 16, 2))
sketch4.addConstraint(Sketcher.Constraint("Vertical", 19, 2, 22, 2))
sketch4.addConstraint(Sketcher.Constraint("Vertical", 25, 2, 28, 2))
sketch4.addConstraint(Sketcher.Constraint("Vertical", 31, 2, 34, 2))
sketch4.addConstraint(Sketcher.Constraint("Equal", 4, 8))
sketch4.addConstraint(Sketcher.Constraint("Equal", 6, 12))
sketch4.addConstraint(Sketcher.Constraint("Equal", 10, 14))
sketch4.addConstraint(Sketcher.Constraint("Equal", 16, 20))
sketch4.addConstraint(Sketcher.Constraint("Equal", 18, 24))
sketch4.addConstraint(Sketcher.Constraint("Equal", 22, 26))
sketch4.addConstraint(Sketcher.Constraint("Equal", 28, 32))
sketch4.addConstraint(Sketcher.Constraint("Equal", 1, 5))
sketch4.addConstraint(Sketcher.Constraint("DistanceY", 3, 1, 3, 2, Q("3 mm")))
sketch4.addConstraint(Sketcher.Constraint("DistanceX", 0, 1, 0, 2, Q("3.6 mm")))
sketch4.addConstraint(Sketcher.Constraint("DistanceX", 2, 1, 2, 2, Q("1.2 mm")))
sketch4.addConstraint(Sketcher.Constraint("DistanceX", -1, 1, 30, 2, Q("70 mm")))
sketch4.addConstraint(Sketcher.Constraint("DistanceY", 1, 1, 1, 2, Q("10 mm")))
sketch4.addConstraint(Sketcher.Constraint("DistanceX", -1, 1, 0, 2, Q("370 mm")))
sketch4.addConstraint(Sketcher.Constraint("DistanceX", 12, 2, 9, 2, Q("147 mm")))
pocket2 = body.newObject("PartDesign::Pocket", "Pocket001")
pocket2.Profile = sketch4
pocket2.Length = 10

sketch5 = body.newObject("Sketcher::SketchObject", "Sketch004")
sketch5.AttachmentSupport = (doc.getObject("XY_Plane"), [""])
sketch5.MapMode = "FlatFace"
sketch5.AttachmentOffset = App.Placement(Vector(0, 0, 4), App.Rotation())
add_polygon(sketch5, [(45, 0), (25, 0), (25, -5), (45, -5)])
add_polygon(sketch5, [(154, 0), (134, 0), (134, -5), (154, -5)])
add_polygon(sketch5, [(297, 0), (277, 0), (277, -5), (297, -5)])
add_polygon(sketch5, [(410, 0), (390, 0), (390, -5), (410, -5)])
sketch5.addConstraint(Sketcher.Constraint("Horizontal", 0))
sketch5.addConstraint(Sketcher.Constraint("Vertical", 1))
sketch5.addConstraint(Sketcher.Constraint("Horizontal", 2))
sketch5.addConstraint(Sketcher.Constraint("Vertical", 3))
sketch5.addConstraint(Sketcher.Constraint("Horizontal", 4))
sketch5.addConstraint(Sketcher.Constraint("Vertical", 5))
sketch5.addConstraint(Sketcher.Constraint("Horizontal", 6))
sketch5.addConstraint(Sketcher.Constraint("Vertical", 7))
sketch5.addConstraint(Sketcher.Constraint("Horizontal", 8))
sketch5.addConstraint(Sketcher.Constraint("Vertical", 9))
sketch5.addConstraint(Sketcher.Constraint("Horizontal", 10))
sketch5.addConstraint(Sketcher.Constraint("Vertical", 11))
sketch5.addConstraint(Sketcher.Constraint("Horizontal", 12))
sketch5.addConstraint(Sketcher.Constraint("Vertical", 13))
sketch5.addConstraint(Sketcher.Constraint("Horizontal", 14))
sketch5.addConstraint(Sketcher.Constraint("Vertical", 15))
sketch5.addConstraint(Sketcher.Constraint("PointOnObject", 0, 2, -1))
sketch5.addConstraint(Sketcher.Constraint("PointOnObject", 4, 2, -1))
sketch5.addConstraint(Sketcher.Constraint("PointOnObject", 8, 2, -1))
sketch5.addConstraint(Sketcher.Constraint("PointOnObject", 12, 2, -1))
sketch5.addConstraint(Sketcher.Constraint("Horizontal", 2, 2, 5, 2))
sketch5.addConstraint(Sketcher.Constraint("Horizontal", 6, 2, 9, 2))
sketch5.addConstraint(Sketcher.Constraint("Horizontal", 10, 2, 13, 2))
sketch5.addConstraint(Sketcher.Constraint("Equal", 2, 4))
sketch5.addConstraint(Sketcher.Constraint("Equal", 6, 8))
sketch5.addConstraint(Sketcher.Constraint("Equal", 10, 12))
sketch5.addConstraint(Sketcher.Constraint("DistanceX", 0, 2, 0, 1, Q("20 mm")))
sketch5.addConstraint(Sketcher.Constraint("DistanceY", 1, 2, 1, 1, Q("5 mm")))
sketch5.addConstraint(Sketcher.Constraint("DistanceX", -1, 1, 0, 2, Q("25 mm")))
sketch5.addConstraint(Sketcher.Constraint("DistanceX", -1, 1, 4, 2, Q("134.1 mm")))
sketch5.addConstraint(Sketcher.Constraint("DistanceX", 11, 2, 12, 2, Q("93.288 mm")))
sketch5.addConstraint(Sketcher.Constraint("DistanceX", -1, 1, 8, 2, Q("277.1516 mm")))
pad3 = body.newObject("PartDesign::Pad", "Pad002")
pad3.Profile = sketch5
pad3.Length = 4
pad3.Reversed = True

sketch6 = body.newObject("Sketcher::SketchObject", "Sketch005")
sketch6.AttachmentSupport = (doc.getObject("XY_Plane"), [""])
sketch6.MapMode = "FlatFace"
sketch6.AttachmentOffset = App.Placement(Vector(0, 0, 4), App.Rotation())
sketch6.addGeometry(Part.Circle(Vector(93, 125, 0), Vector(0, 0, 1), 1.5), False)
sketch6.addGeometry(Part.Circle(Vector(62.7, 72.5, 0), Vector(0, 0, 1), 1.5), False)
sketch6.addGeometry(Part.Circle(Vector(123.3, 72.5, 0), Vector(0, 0, 1), 1.5), False)
sketch6.addGeometry(Part.Circle(Vector(202, 125, 0), Vector(0, 0, 1), 1.5), False)
sketch6.addGeometry(Part.Circle(Vector(171.7, 72.5, 0), Vector(0, 0, 1), 1.5), False)
sketch6.addGeometry(Part.Circle(Vector(232.3, 72.5, 0), Vector(0, 0, 1), 1.5), False)
sketch6.addGeometry(Part.Circle(Vector(311, 117, 0), Vector(0, 0, 1), 1.8), False)
sketch6.addGeometry(Part.Circle(Vector(287.6, 76.5, 0), Vector(0, 0, 1), 1.8), False)
sketch6.addGeometry(Part.Circle(Vector(334.4, 76.5, 0), Vector(0, 0, 1), 1.8), False)
sketch6.addGeometry(Part.Circle(Vector(402, 117, 0), Vector(0, 0, 1), 1.8), False)
sketch6.addGeometry(Part.Circle(Vector(378.6, 76.5, 0), Vector(0, 0, 1), 1.8), False)
sketch6.addGeometry(Part.Circle(Vector(425.4, 76.5, 0), Vector(0, 0, 1), 1.8), False)
sketch6.addConstraint(Sketcher.Constraint("Equal", 0, 1))
sketch6.addConstraint(Sketcher.Constraint("Equal", 1, 2))
sketch6.addConstraint(Sketcher.Constraint("Equal", 2, 3))
sketch6.addConstraint(Sketcher.Constraint("Equal", 3, 4))
sketch6.addConstraint(Sketcher.Constraint("Equal", 4, 5))
sketch6.addConstraint(Sketcher.Constraint("Equal", 6, 7))
sketch6.addConstraint(Sketcher.Constraint("Equal", 7, 8))
sketch6.addConstraint(Sketcher.Constraint("Equal", 8, 9))
sketch6.addConstraint(Sketcher.Constraint("Equal", 9, 10))
sketch6.addConstraint(Sketcher.Constraint("Equal", 10, 11))
sketch6.addConstraint(Sketcher.Constraint("Horizontal", 1, 3, 2, 3))
sketch6.addConstraint(Sketcher.Constraint("Horizontal", 0, 3, 3, 3))
sketch6.addConstraint(Sketcher.Constraint("Horizontal", 2, 3, 4, 3))
sketch6.addConstraint(Sketcher.Constraint("Horizontal", 4, 3, 5, 3))
sketch6.addConstraint(Sketcher.Constraint("Horizontal", 7, 3, 8, 3))
sketch6.addConstraint(Sketcher.Constraint("Horizontal", 6, 3, 9, 3))
sketch6.addConstraint(Sketcher.Constraint("Horizontal", 8, 3, 10, 3))
sketch6.addConstraint(Sketcher.Constraint("Horizontal", 10, 3, 11, 3))
sketch6.addConstraint(Sketcher.Constraint("Diameter", 0, Q("3 mm")))
sketch6.addConstraint(Sketcher.Constraint("Diameter", 6, Q("3.6 mm")))
sketch6.addConstraint(Sketcher.Constraint("DistanceX", -1, 1, 0, 3, Q("93 mm")))
sketch6.addConstraint(Sketcher.Constraint("DistanceY", -1, 1, 0, 3, Q("125 mm")))
sketch6.addConstraint(Sketcher.Constraint("DistanceX", -1, 1, 3, 3, Q("202 mm")))
sketch6.addConstraint(Sketcher.Constraint("DistanceX", -1, 1, 6, 3, Q("311 mm")))
sketch6.addConstraint(Sketcher.Constraint("DistanceY", -1, 1, 6, 3, Q("117 mm")))
sketch6.addConstraint(Sketcher.Constraint("DistanceX", -1, 1, 9, 3, Q("402 mm")))
sketch6.addConstraint(Sketcher.Constraint("DistanceX", 1, 3, 4, 3, Q("109 mm")))
sketch6.addConstraint(Sketcher.Constraint("DistanceX", 2, 3, 5, 3, Q("109 mm")))
sketch6.addConstraint(Sketcher.Constraint("DistanceY", 5, 3, 7, 3, Q("4 mm")))
sketch6.addConstraint(Sketcher.Constraint("DistanceX", 7, 3, 10, 3, Q("91 mm")))
sketch6.addConstraint(Sketcher.Constraint("DistanceX", 8, 3, 11, 3, Q("91 mm")))
sketch6.addConstraint(Sketcher.Constraint("DistanceY", -1, 1, 1, 3, Q("72.5 mm")))
sketch6.addConstraint(Sketcher.Constraint("DistanceX", -1, 1, 1, 3, Q("62.689 mm")))
sketch6.addConstraint(Sketcher.Constraint("DistanceX", -1, 1, 2, 3, Q("123.311 mm")))
sketch6.addConstraint(Sketcher.Constraint("DistanceX", -1, 1, 7, 3, Q("287.6173 mm")))
sketch6.addConstraint(Sketcher.Constraint("DistanceX", -1, 1, 8, 3, Q("334.3827 mm")))
pocket3 = body.newObject("PartDesign::Pocket", "Pocket002")
pocket3.Profile = sketch6
pocket3.Length = 4

doc.recompute()
